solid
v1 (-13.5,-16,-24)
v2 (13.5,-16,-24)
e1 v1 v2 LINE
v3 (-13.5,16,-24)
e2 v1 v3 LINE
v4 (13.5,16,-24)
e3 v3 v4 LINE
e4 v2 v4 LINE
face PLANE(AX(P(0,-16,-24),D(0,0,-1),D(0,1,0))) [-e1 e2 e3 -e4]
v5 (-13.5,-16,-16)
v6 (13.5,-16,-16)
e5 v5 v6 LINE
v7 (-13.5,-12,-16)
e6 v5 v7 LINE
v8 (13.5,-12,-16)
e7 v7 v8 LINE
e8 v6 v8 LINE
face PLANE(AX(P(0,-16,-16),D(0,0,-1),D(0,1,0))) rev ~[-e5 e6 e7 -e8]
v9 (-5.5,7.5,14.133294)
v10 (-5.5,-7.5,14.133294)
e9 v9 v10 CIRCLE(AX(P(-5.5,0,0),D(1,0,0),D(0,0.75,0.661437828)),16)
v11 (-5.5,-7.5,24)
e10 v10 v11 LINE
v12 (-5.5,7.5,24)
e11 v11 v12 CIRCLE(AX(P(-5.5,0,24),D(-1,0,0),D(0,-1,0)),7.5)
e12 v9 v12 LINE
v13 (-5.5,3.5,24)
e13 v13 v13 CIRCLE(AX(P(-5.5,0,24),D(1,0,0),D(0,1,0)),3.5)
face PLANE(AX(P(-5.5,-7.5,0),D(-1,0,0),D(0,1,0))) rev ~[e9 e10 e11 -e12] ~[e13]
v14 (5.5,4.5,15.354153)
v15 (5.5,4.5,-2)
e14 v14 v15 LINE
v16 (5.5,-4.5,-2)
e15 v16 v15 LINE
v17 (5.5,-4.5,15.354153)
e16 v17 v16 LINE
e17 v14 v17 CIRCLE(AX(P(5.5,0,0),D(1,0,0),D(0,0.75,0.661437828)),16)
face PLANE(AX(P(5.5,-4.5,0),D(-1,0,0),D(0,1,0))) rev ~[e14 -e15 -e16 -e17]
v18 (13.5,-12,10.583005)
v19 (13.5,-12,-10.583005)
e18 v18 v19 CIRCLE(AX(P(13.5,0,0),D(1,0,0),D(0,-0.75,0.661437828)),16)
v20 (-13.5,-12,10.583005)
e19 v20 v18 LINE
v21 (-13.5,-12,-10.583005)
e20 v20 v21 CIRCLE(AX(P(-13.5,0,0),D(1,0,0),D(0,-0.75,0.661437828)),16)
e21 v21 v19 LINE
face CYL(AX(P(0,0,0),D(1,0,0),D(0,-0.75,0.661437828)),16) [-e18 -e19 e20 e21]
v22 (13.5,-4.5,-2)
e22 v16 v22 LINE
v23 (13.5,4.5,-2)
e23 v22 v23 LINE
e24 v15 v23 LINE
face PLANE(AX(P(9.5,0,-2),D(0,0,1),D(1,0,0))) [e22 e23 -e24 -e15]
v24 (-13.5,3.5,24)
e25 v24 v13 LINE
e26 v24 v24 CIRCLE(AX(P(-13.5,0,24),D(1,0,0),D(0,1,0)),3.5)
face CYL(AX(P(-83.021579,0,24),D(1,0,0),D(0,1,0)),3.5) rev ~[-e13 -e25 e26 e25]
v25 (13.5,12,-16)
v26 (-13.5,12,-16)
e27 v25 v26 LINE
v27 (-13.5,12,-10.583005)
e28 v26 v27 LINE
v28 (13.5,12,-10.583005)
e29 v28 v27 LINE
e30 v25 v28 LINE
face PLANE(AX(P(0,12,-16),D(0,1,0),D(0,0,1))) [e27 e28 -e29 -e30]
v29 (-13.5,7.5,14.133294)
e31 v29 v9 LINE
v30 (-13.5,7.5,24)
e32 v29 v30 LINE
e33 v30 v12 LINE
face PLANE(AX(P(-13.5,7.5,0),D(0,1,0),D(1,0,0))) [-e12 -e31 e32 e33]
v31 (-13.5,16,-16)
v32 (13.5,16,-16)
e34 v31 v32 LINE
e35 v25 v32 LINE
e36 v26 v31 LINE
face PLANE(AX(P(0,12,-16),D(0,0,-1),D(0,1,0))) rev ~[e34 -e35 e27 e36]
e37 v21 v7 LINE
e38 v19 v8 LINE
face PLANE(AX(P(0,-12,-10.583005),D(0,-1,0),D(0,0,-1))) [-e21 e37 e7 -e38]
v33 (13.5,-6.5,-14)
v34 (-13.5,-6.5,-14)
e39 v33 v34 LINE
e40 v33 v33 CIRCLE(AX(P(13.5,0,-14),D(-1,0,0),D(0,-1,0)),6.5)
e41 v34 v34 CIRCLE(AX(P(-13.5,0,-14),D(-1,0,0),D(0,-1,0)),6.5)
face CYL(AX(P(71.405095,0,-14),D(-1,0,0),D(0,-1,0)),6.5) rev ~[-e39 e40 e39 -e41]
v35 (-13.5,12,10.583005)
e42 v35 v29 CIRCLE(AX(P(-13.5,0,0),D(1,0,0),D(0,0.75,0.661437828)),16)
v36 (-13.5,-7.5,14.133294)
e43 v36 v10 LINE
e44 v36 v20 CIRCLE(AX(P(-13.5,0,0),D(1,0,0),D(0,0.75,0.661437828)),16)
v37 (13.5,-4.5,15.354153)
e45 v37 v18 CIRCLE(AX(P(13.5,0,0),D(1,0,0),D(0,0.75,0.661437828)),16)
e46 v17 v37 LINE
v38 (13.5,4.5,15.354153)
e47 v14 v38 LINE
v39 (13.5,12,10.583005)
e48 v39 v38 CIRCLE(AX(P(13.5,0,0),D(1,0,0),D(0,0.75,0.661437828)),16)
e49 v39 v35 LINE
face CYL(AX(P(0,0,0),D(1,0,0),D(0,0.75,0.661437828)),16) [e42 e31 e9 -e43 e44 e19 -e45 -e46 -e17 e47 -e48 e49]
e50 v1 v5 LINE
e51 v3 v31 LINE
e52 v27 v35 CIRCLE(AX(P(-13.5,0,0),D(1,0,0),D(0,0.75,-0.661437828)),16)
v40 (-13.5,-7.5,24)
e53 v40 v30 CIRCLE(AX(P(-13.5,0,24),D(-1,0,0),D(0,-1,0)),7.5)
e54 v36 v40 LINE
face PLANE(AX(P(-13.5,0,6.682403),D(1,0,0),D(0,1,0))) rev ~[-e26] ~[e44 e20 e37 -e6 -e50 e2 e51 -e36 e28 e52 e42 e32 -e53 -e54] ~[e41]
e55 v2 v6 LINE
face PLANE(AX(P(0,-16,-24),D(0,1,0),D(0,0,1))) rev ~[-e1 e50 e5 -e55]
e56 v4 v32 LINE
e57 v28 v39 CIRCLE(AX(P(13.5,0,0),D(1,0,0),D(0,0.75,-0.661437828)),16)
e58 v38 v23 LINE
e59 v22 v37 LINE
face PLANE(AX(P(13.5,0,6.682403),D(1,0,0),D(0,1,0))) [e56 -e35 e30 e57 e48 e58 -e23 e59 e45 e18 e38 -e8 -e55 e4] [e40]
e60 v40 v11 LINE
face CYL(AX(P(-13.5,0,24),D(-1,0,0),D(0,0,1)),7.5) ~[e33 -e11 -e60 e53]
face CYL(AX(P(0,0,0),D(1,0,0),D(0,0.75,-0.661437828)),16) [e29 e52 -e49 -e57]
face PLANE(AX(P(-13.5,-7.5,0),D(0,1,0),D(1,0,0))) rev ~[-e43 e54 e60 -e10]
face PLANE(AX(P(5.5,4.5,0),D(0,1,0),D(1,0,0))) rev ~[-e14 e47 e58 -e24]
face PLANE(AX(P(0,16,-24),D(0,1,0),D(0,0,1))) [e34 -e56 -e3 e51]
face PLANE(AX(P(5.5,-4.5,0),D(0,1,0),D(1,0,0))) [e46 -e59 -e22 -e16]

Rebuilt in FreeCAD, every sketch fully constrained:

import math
import FreeCAD as App
import Part
import Sketcher
Q = App.Units.Quantity

doc = App.newDocument("Part")
body = doc.addObject("PartDesign::Body", "Body")

# Sketch on YZ plane
sketch1 = doc.addObject("Sketcher::SketchObject", "Sketch")
body.addObject(sketch1)
sketch1.AttachmentSupport = (doc.YZ_Plane, [""])
sketch1.MapMode = "FlatFace"
sketch1.addGeometry([
    Part.ArcOfCircle(Part.Circle(App.Vector(0, 0, 0), App.Vector(0, 0, 1), 16), math.radians(41), math.radians(139)),  # 0
    Part.ArcOfCircle(Part.Circle(App.Vector(0, 0, 0), App.Vector(0, 0, 1), 16), math.radians(139), math.radians(221)),  # 1
    Part.LineSegment(App.Vector(-12, -10.6, 0), App.Vector(-12, -16, 0)),  # 2
    Part.LineSegment(App.Vector(-12, -16, 0), App.Vector(-16, -16, 0)),  # 3
    Part.LineSegment(App.Vector(-16, -16, 0), App.Vector(-16, -24, 0)),  # 4
    Part.LineSegment(App.Vector(-16, -24, 0), App.Vector(16, -24, 0)),  # 5
    Part.LineSegment(App.Vector(16, -24, 0), App.Vector(16, -16, 0)),  # 6
    Part.LineSegment(App.Vector(16, -16, 0), App.Vector(12, -16, 0)),  # 7
    Part.LineSegment(App.Vector(12, -16, 0), App.Vector(12, -10.6, 0)),  # 8
    Part.ArcOfCircle(Part.Circle(App.Vector(0, 0, 0), App.Vector(0, 0, 1), 16), math.radians(-41), math.radians(41)),  # 9
], False)
sketch1.addConstraint([
    Sketcher.Constraint("Tangent", 0, 2, 1, 1),
    Sketcher.Constraint("Coincident", 1, 2, 2, 1),
    Sketcher.Constraint("Coincident", 2, 2, 3, 1),
    Sketcher.Constraint("Coincident", 3, 2, 4, 1),
    Sketcher.Constraint("Coincident", 4, 2, 5, 1),
    Sketcher.Constraint("Coincident", 5, 2, 6, 1),
    Sketcher.Constraint("Coincident", 6, 2, 7, 1),
    Sketcher.Constraint("Coincident", 7, 2, 8, 1),
    Sketcher.Constraint("Coincident", 8, 2, 9, 1),
    Sketcher.Constraint("Tangent", 9, 2, 0, 1),
    Sketcher.Constraint("Vertical", 2),
    Sketcher.Constraint("Horizontal", 3),
    Sketcher.Constraint("Vertical", 4),
    Sketcher.Constraint("Horizontal", 5),
    Sketcher.Constraint("Vertical", 6),
    Sketcher.Constraint("Horizontal", 7),
    Sketcher.Constraint("Vertical", 8),
    Sketcher.Constraint("Coincident", 0, 3, -1, 1),
    Sketcher.Constraint("Equal", 0, 1),
    Sketcher.Constraint("Equal", 1, 9),
    Sketcher.Constraint("Symmetric", 3, 2, 6, 2, -2),
    Sketcher.Constraint("Horizontal", 1, 2, 8, 2),
    Sketcher.Constraint("Horizontal", 0, 2, 9, 2),
    Sketcher.Constraint("Vertical", 0, 2, 1, 2),
    Sketcher.Constraint("Radius", 0, Q("16 mm")),
    Sketcher.Constraint("DistanceX", 3, 2, 3, 1, Q("4 mm")),
    Sketcher.Constraint("DistanceX", 5, 1, 5, 2, Q("32 mm")),
    Sketcher.Constraint("DistanceY", 4, 2, 4, 1, Q("8 mm")),
    Sketcher.Constraint("DistanceY", 2, 2, -1, 1, Q("16 mm")),
])
pad1 = doc.addObject("PartDesign::Pad", "Pad")
body.addObject(pad1)
pad1.Profile = sketch1
pad1.Length = 27
pad1.Midplane = True

# Sketch on YZ plane
sketch2 = doc.addObject("Sketcher::SketchObject", "Sketch001")
body.addObject(sketch2)
sketch2.AttachmentSupport = (doc.YZ_Plane, [""])
sketch2.MapMode = "FlatFace"
sketch2.AttachmentOffset = App.Placement(App.Vector(0, 0, 13.5), App.Rotation())
sketch2.addGeometry(Part.Circle(App.Vector(0, -14, 0), App.Vector(0, 0, 1), 6), False)
sketch2.addConstraint([
    Sketcher.Constraint("PointOnObject", 0, 3, -2),
    Sketcher.Constraint("Diameter", 0, Q("13 mm")),
    Sketcher.Constraint("DistanceY", 0, 3, -1, 1, Q("14 mm")),
])
doc.recompute()
hole = doc.addObject("PartDesign::Hole", "Hole")
body.addObject(hole)
hole.Profile = sketch2
hole.ThreadType = "None"
hole.Diameter = 13
hole.DepthType = "ThroughAll"

# Sketch on XY plane
sketch3 = doc.addObject("Sketcher::SketchObject", "Sketch002")
body.addObject(sketch3)
sketch3.AttachmentSupport = (doc.XY_Plane, [""])
sketch3.MapMode = "FlatFace"
sketch3.addGeometry([
    Part.LineSegment(App.Vector(-6, 8, 0), App.Vector(-14, 8, 0)),
    Part.LineSegment(App.Vector(-14, 8, 0), App.Vector(-14, -8, 0)),
    Part.LineSegment(App.Vector(-14, -8, 0), App.Vector(-6, -8, 0)),
    Part.LineSegment(App.Vector(-6, -8, 0), App.Vector(-6, 8, 0)),
], False)
sketch3.addConstraint([
    Sketcher.Constraint("Coincident", 0, 2, 1, 1),
    Sketcher.Constraint("Coincident", 1, 2, 2, 1),
    Sketcher.Constraint("Coincident", 2, 2, 3, 1),
    Sketcher.Constraint("Coincident", 3, 2, 0, 1),
    Sketcher.Constraint("Horizontal", 0),
    Sketcher.Constraint("Vertical", 1),
    Sketcher.Constraint("Horizontal", 2),
    Sketcher.Constraint("Vertical", 3),
    Sketcher.Constraint("DistanceX", 0, 2, 0, 1, Q("8 mm")),
    Sketcher.Constraint("DistanceY", 1, 2, 1, 1, Q("15 mm")),
    Sketcher.Constraint("DistanceX", 0, 2, -1, 1, Q("13.5 mm")),
    Sketcher.Constraint("DistanceY", -1, 1, 0, 2, Q("7.5 mm")),
])
pad2 = doc.addObject("PartDesign::Pad", "Pad001")
body.addObject(pad2)
pad2.Profile = sketch3
pad2.Length = 31.5

# Sketch on XY plane
sketch4 = doc.addObject("Sketcher::SketchObject", "Sketch003")
body.addObject(sketch4)
sketch4.AttachmentSupport = (doc.XY_Plane, [""])
sketch4.MapMode = "FlatFace"
sketch4.addGeometry([
    Part.LineSegment(App.Vector(6, 4, 0), App.Vector(6, -4, 0)),
    Part.LineSegment(App.Vector(6, -4, 0), App.Vector(14, -4, 0)),
    Part.LineSegment(App.Vector(14, -4, 0), App.Vector(14, 4, 0)),
    Part.LineSegment(App.Vector(14, 4, 0), App.Vector(6, 4, 0)),
], False)
sketch4.addConstraint([
    Sketcher.Constraint("Coincident", 0, 2, 1, 1),
    Sketcher.Constraint("Coincident", 1, 2, 2, 1),
    Sketcher.Constraint("Coincident", 2, 2, 3, 1),
    Sketcher.Constraint("Coincident", 3, 2, 0, 1),
    Sketcher.Constraint("Vertical", 0),
    Sketcher.Constraint("Horizontal", 1),
    Sketcher.Constraint("Vertical", 2),
    Sketcher.Constraint("Horizontal", 3),
    Sketcher.Constraint("DistanceX", 1, 1, 1, 2, Q("8 mm")),
    Sketcher.Constraint("DistanceY", 0, 2, 0, 1, Q("9 mm")),
    Sketcher.Constraint("DistanceX", -1, 1, 0, 2, Q("5.5 mm")),
    Sketcher.Constraint("DistanceY", 0, 2, -1, 1, Q("4.5 mm")),
])
pocket1 = doc.addObject("PartDesign::Pocket", "Pocket")
body.addObject(pocket1)
pocket1.Profile = sketch4
pocket1.Type = "TwoLengths"
pocket1.Length = 110
pocket1.Length2 = 2
pocket1.Reversed = True

# Sketch on YZ plane
sketch5 = doc.addObject("Sketcher::SketchObject", "Sketch004")
body.addObject(sketch5)
sketch5.AttachmentSupport = (doc.YZ_Plane, [""])
sketch5.MapMode = "FlatFace"
sketch5.AttachmentOffset = App.Placement(App.Vector(0, 0, -13.5), App.Rotation())
sketch5.addGeometry(Part.Circle(App.Vector(0, 24, 0), App.Vector(0, 0, 1), 3.5), False)
sketch5.addConstraint([
    Sketcher.Constraint("PointOnObject", 0, 3, -2),
    Sketcher.Constraint("Diameter", 0, Q("7 mm")),
    Sketcher.Constraint("DistanceY", -1, 1, 0, 3, Q("24 mm")),
])
doc.recompute()
hole2 = doc.addObject("PartDesign::Hole", "Hole001")
body.addObject(hole2)
hole2.Profile = sketch5
hole2.ThreadType = "None"
hole2.Diameter = 7
hole2.DepthType = "ThroughAll"
hole2.Reversed = True

# Sketch on YZ plane
sketch6 = doc.addObject("Sketcher::SketchObject", "Sketch005")
body.addObject(sketch6)
sketch6.AttachmentSupport = (doc.YZ_Plane, [""])
sketch6.MapMode = "FlatFace"
sketch6.AttachmentOffset = App.Placement(App.Vector(0, 0, -13.5), App.Rotation())
sketch6.addGeometry([
    Part.LineSegment(App.Vector(-8, 24, 0), App.Vector(-8, 32, 0)),  # 0
    Part.LineSegment(App.Vector(-8, 32, 0), App.Vector(0, 32, 0)),  # 1
    Part.ArcOfCircle(Part.Circle(App.Vector(0, 24, 0), App.Vector(0, 0, 1), 8), math.radians(90), math.radians(180)),  # 2
    Part.ArcOfCircle(Part.Circle(App.Vector(0, 24, 0), App.Vector(0, 0, 1), 8), math.radians(0), math.radians(90)),  # 3
    Part.LineSegment(App.Vector(0, 32, 0), App.Vector(8, 32, 0)),  # 4
    Part.LineSegment(App.Vector(8, 32, 0), App.Vector(8, 24, 0)),  # 5
], False)
sketch6.addConstraint([
    Sketcher.Constraint("Coincident", 0, 2, 1, 1),
    Sketcher.Constraint("Tangent", 1, 2, 2, 1),
    Sketcher.Constraint("Tangent", 2, 2, 0, 1),
    Sketcher.Constraint("Tangent", 3, 2, 4, 1),
    Sketcher.Constraint("Coincident", 4, 2, 5, 1),
    Sketcher.Constraint("Tangent", 5, 2, 3, 1),
    Sketcher.Constraint("Vertical", 0),
    Sketcher.Constraint("Horizontal", 1),
    Sketcher.Constraint("Horizontal", 4),
    Sketcher.Constraint("Vertical", 5),
    Sketcher.Constraint("Coincident", 3, 3, 2, 3),
    Sketcher.Constraint("Equal", 2, 3),
    Sketcher.Constraint("PointOnObject", 2, 3, -2),
    Sketcher.Constraint("Radius", 2, Q("7.5 mm")),
    Sketcher.Constraint("DistanceY", -1, 1, 2, 3, Q("24 mm")),
])
pocket2 = doc.addObject("PartDesign::Pocket", "Pocket001")
body.addObject(pocket2)
pocket2.Profile = sketch6
pocket2.Length = 25
pocket2.Reversed = True

doc.recompute()
